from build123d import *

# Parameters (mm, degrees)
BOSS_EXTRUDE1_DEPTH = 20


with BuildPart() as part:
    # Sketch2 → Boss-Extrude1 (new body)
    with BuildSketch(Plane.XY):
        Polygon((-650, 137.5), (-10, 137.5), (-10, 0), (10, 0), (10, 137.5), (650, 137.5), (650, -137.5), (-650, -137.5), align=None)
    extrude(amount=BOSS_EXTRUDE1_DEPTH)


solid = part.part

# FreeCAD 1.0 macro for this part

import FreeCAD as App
import Part
import Sketcher

V = App.Vector
Q = App.Units.Quantity

doc = App.newDocument("Part")
params = doc.addObject("Spreadsheet::Sheet", "Params")
for row, (alias, value) in enumerate([
    ("sketch1_width", "640 mm"),
    ("sketch1_width2", "1300 mm"),
    ("sketch1_height", "275 mm"),
    ("pad1_length", "20 mm"),
], start=1):
    params.set(f"A{row}", alias)
    params.set(f"B{row}", "=" + value)
    params.setAlias(f"B{row}", alias)

body = doc.addObject("PartDesign::Body", "Body")

sketch1 = body.newObject("Sketcher::SketchObject", "Sketch")
sketch1.AttachmentSupport = (doc.getObject("XY_Plane"), [""])
sketch1.MapMode = "FlatFace"
sketch1.addGeometry([
    Part.LineSegment(V(-10, 137.5, 0), V(-650, 137.5, 0)),
    Part.LineSegment(V(-650, 137.5, 0), V(-650, -137.5, 0)),
    Part.LineSegment(V(-650, -137.5, 0), V(650, -137.5, 0)),
    Part.LineSegment(V(650, -137.5, 0), V(650, 137.5, 0)),
    Part.LineSegment(V(650, 137.5, 0), V(10, 137.5, 0)),
    Part.LineSegment(V(10, 137.5, 0), V(10, 0, 0)),
    Part.LineSegment(V(10, 0, 0), V(-10, 0, 0)),
    Part.LineSegment(V(-10, 0, 0), V(-10, 137.5, 0)),
], False)
sketch1.addConstraint([
    Sketcher.Constraint("Coincident", 0, 2, 1, 1),
    Sketcher.Constraint("Coincident", 1, 2, 2, 1),
    Sketcher.Constraint("Coincident", 2, 2, 3, 1),
    Sketcher.Constraint("Coincident", 3, 2, 4, 1),
    Sketcher.Constraint("Coincident", 4, 2, 5, 1),
    Sketcher.Constraint("Coincident", 5, 2, 6, 1),
    Sketcher.Constraint("Coincident", 6, 2, 7, 1),
    Sketcher.Constraint("Coincident", 7, 2, 0, 1),
    Sketcher.Constraint("Horizontal", 0),
    Sketcher.Constraint("Vertical", 1),
    Sketcher.Constraint("Horizontal", 2),
    Sketcher.Constraint("Vertical", 3),
    Sketcher.Constraint("Horizontal", 4),
    Sketcher.Constraint("Vertical", 5),
    Sketcher.Constraint("Horizontal", 6),
    Sketcher.Constraint("Vertical", 7),
    Sketcher.Constraint("Symmetric", 0, 2, 2, 2, -1, 1),
    Sketcher.Constraint("Symmetric", 5, 2, 6, 2, -1, 1),
    Sketcher.Constraint("Horizontal", 0, 2, 3, 2),
    Sketcher.Constraint("DistanceX", 0, 2, 0, 1, Q("640 mm")),
    Sketcher.Constraint("DistanceX", 2, 1, 2, 2, Q("1300 mm")),
    Sketcher.Constraint("DistanceY", 1, 2, 1, 1, Q("275 mm")),
])
sketch1.setExpression("Constraints[19]", "Params.sketch1_width")
sketch1.setExpression("Constraints[20]", "Params.sketch1_width2")
sketch1.setExpression("Constraints[21]", "Params.sketch1_height")
pad1 = body.newObject("PartDesign::Pad", "Pad")
pad1.Profile = sketch1
pad1.setExpression("Length", "Params.pad1_length")

doc.recompute()
